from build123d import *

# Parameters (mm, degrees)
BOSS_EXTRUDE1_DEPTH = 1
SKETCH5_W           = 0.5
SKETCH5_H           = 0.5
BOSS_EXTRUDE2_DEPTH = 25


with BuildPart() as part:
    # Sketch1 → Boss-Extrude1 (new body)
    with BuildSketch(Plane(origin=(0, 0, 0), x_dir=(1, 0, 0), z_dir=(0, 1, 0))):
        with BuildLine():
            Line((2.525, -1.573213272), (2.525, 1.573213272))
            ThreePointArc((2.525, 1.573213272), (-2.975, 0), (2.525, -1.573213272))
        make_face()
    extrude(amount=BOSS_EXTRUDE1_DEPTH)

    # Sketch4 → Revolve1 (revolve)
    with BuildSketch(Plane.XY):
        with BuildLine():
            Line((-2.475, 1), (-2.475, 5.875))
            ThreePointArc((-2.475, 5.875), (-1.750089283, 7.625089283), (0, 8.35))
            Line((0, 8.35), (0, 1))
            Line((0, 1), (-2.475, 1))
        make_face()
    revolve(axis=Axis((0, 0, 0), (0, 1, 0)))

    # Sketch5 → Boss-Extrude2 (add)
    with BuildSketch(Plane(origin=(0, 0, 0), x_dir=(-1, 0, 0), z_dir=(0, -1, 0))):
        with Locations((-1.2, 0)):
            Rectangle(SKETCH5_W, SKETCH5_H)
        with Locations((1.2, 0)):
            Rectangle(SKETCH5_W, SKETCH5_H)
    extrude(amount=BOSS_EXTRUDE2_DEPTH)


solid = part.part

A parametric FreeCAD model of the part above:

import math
import FreeCAD as App
import Part
import Sketcher
from FreeCAD import Vector
Q = App.Units.Quantity

doc = App.newDocument("Part")
body = doc.addObject("PartDesign::Body", "Body")

# Sketch on XZ plane
sketch1 = doc.addObject("Sketcher::SketchObject", "Sketch")
body.addObject(sketch1)
sketch1.AttachmentSupport = (doc.XZ_Plane, [""])
sketch1.MapMode = "FlatFace"
sketch1.addGeometry([
    Part.LineSegment(Vector(2.5, 1.6, 0), Vector(2.5, -1.6, 0)),
    Part.ArcOfCircle(Part.Circle(Vector(0, 0, 0), Vector(0, 0, 1), 3), math.radians(32), math.radians(328)),
], False)
sketch1.addConstraint([
    Sketcher.Constraint("Coincident", 0, 1, 1, 1),
    Sketcher.Constraint("Coincident", 1, 2, 0, 2),
    Sketcher.Constraint("Vertical", 0),
    Sketcher.Constraint("Coincident", 1, 3, -1, 1),
    Sketcher.Constraint("Radius", 1, Q("2.975 mm")),
    Sketcher.Constraint("DistanceX", -1, 1, 0, 1, Q("2.525 mm")),
])
pad1 = doc.addObject("PartDesign::Pad", "Pad")
body.addObject(pad1)
pad1.Profile = sketch1
pad1.Length = 1
pad1.Reversed = True

# Sketch on XY plane
sketch2 = doc.addObject("Sketcher::SketchObject", "Sketch001")
body.addObject(sketch2)
sketch2.AttachmentSupport = (doc.XY_Plane, [""])
sketch2.MapMode = "FlatFace"
sketch2.addGeometry([
    Part.LineSegment(Vector(-2.5, 5.9, 0), Vector(-2.5, 1, 0)),
    Part.LineSegment(Vector(-2.5, 1, 0), Vector(0, 1, 0)),
    Part.LineSegment(Vector(0, 1, 0), Vector(0, 8.3, 0)),
    Part.ArcOfCircle(Part.Circle(Vector(0, 5.9, 0), Vector(0, 0, 1), 2.5), math.radians(90), math.radians(180)),
], False)
sketch2.addConstraint([
    Sketcher.Constraint("Coincident", 0, 2, 1, 1),
    Sketcher.Constraint("Coincident", 1, 2, 2, 1),
    Sketcher.Constraint("Coincident", 2, 2, 3, 1),
    Sketcher.Constraint("Tangent", 3, 2, 0, 1),
    Sketcher.Constraint("Vertical", 0),
    Sketcher.Constraint("Horizontal", 1),
    Sketcher.Constraint("Vertical", 2),
    Sketcher.Constraint("PointOnObject", 3, 3, -2),
    Sketcher.Constraint("PointOnObject", 1, 2, -2),
    Sketcher.Constraint("DistanceY", -1, 1, 0, 2, Q("1 mm")),
    Sketcher.Constraint("Radius", 3, Q("2.475 mm")),
    Sketcher.Constraint("DistanceY", 2, 1, 2, 2, Q("7.35 mm")),
])
revolution = doc.addObject("PartDesign::Revolution", "Revolution")
body.addObject(revolution)
revolution.Profile = sketch2
revolution.ReferenceAxis = (sketch2, ["V_Axis"])
revolution.Angle = 360

# Sketch on XZ plane
sketch3 = doc.addObject("Sketcher::SketchObject", "Sketch002")
body.addObject(sketch3)
sketch3.AttachmentSupport = (doc.XZ_Plane, [""])
sketch3.MapMode = "FlatFace"
sketch3.addGeometry([
    Part.LineSegment(Vector(1.4, -0.2, 0), Vector(1.4, 0.2, 0)),  # 0
    Part.LineSegment(Vector(1.4, 0.2, 0), Vector(0.9, 0.2, 0)),  # 1
    Part.LineSegment(Vector(0.9, 0.2, 0), Vector(0.9, -0.2, 0)),  # 2
    Part.LineSegment(Vector(0.9, -0.2, 0), Vector(1.4, -0.2, 0)),  # 3
    Part.LineSegment(Vector(-0.9, -0.2, 0), Vector(-0.9, 0.2, 0)),  # 4
    Part.LineSegment(Vector(-0.9, 0.2, 0), Vector(-1.4, 0.2, 0)),  # 5
    Part.LineSegment(Vector(-1.4, 0.2, 0), Vector(-1.4, -0.2, 0)),  # 6
    Part.LineSegment(Vector(-1.4, -0.2, 0), Vector(-0.9, -0.2, 0)),  # 7
], False)
sketch3.addConstraint([
    Sketcher.Constraint("Coincident", 0, 2, 1, 1),
    Sketcher.Constraint("Coincident", 1, 2, 2, 1),
    Sketcher.Constraint("Coincident", 2, 2, 3, 1),
    Sketcher.Constraint("Coincident", 3, 2, 0, 1),
    Sketcher.Constraint("Coincident", 4, 2, 5, 1),
    Sketcher.Constraint("Coincident", 5, 2, 6, 1),
    Sketcher.Constraint("Coincident", 6, 2, 7, 1),
    Sketcher.Constraint("Coincident", 7, 2, 4, 1),
    Sketcher.Constraint("Vertical", 0),
    Sketcher.Constraint("Horizontal", 1),
    Sketcher.Constraint("Vertical", 2),
    Sketcher.Constraint("Horizontal", 3),
    Sketcher.Constraint("Vertical", 4),
    Sketcher.Constraint("Horizontal", 5),
    Sketcher.Constraint("Vertical", 6),
    Sketcher.Constraint("Horizontal", 7),
    Sketcher.Constraint("Symmetric", 2, 2, 4, 2, -1, 1),
    Sketcher.Constraint("Symmetric", 0, 2, 6, 2, -1, 1),
    Sketcher.Constraint("Horizontal", 1, 2, 4, 2),
    Sketcher.Constraint("Equal", 7, 0),
    Sketcher.Constraint("DistanceX", 1, 2, 1, 1, Q("0.5 mm")),
    Sketcher.Constraint("DistanceX", 4, 2, 1, 2, Q("1.9 mm")),
])
pad2 = doc.addObject("PartDesign::Pad", "Pad001")
body.addObject(pad2)
pad2.Profile = sketch3
pad2.Length = 25

doc.recompute()
